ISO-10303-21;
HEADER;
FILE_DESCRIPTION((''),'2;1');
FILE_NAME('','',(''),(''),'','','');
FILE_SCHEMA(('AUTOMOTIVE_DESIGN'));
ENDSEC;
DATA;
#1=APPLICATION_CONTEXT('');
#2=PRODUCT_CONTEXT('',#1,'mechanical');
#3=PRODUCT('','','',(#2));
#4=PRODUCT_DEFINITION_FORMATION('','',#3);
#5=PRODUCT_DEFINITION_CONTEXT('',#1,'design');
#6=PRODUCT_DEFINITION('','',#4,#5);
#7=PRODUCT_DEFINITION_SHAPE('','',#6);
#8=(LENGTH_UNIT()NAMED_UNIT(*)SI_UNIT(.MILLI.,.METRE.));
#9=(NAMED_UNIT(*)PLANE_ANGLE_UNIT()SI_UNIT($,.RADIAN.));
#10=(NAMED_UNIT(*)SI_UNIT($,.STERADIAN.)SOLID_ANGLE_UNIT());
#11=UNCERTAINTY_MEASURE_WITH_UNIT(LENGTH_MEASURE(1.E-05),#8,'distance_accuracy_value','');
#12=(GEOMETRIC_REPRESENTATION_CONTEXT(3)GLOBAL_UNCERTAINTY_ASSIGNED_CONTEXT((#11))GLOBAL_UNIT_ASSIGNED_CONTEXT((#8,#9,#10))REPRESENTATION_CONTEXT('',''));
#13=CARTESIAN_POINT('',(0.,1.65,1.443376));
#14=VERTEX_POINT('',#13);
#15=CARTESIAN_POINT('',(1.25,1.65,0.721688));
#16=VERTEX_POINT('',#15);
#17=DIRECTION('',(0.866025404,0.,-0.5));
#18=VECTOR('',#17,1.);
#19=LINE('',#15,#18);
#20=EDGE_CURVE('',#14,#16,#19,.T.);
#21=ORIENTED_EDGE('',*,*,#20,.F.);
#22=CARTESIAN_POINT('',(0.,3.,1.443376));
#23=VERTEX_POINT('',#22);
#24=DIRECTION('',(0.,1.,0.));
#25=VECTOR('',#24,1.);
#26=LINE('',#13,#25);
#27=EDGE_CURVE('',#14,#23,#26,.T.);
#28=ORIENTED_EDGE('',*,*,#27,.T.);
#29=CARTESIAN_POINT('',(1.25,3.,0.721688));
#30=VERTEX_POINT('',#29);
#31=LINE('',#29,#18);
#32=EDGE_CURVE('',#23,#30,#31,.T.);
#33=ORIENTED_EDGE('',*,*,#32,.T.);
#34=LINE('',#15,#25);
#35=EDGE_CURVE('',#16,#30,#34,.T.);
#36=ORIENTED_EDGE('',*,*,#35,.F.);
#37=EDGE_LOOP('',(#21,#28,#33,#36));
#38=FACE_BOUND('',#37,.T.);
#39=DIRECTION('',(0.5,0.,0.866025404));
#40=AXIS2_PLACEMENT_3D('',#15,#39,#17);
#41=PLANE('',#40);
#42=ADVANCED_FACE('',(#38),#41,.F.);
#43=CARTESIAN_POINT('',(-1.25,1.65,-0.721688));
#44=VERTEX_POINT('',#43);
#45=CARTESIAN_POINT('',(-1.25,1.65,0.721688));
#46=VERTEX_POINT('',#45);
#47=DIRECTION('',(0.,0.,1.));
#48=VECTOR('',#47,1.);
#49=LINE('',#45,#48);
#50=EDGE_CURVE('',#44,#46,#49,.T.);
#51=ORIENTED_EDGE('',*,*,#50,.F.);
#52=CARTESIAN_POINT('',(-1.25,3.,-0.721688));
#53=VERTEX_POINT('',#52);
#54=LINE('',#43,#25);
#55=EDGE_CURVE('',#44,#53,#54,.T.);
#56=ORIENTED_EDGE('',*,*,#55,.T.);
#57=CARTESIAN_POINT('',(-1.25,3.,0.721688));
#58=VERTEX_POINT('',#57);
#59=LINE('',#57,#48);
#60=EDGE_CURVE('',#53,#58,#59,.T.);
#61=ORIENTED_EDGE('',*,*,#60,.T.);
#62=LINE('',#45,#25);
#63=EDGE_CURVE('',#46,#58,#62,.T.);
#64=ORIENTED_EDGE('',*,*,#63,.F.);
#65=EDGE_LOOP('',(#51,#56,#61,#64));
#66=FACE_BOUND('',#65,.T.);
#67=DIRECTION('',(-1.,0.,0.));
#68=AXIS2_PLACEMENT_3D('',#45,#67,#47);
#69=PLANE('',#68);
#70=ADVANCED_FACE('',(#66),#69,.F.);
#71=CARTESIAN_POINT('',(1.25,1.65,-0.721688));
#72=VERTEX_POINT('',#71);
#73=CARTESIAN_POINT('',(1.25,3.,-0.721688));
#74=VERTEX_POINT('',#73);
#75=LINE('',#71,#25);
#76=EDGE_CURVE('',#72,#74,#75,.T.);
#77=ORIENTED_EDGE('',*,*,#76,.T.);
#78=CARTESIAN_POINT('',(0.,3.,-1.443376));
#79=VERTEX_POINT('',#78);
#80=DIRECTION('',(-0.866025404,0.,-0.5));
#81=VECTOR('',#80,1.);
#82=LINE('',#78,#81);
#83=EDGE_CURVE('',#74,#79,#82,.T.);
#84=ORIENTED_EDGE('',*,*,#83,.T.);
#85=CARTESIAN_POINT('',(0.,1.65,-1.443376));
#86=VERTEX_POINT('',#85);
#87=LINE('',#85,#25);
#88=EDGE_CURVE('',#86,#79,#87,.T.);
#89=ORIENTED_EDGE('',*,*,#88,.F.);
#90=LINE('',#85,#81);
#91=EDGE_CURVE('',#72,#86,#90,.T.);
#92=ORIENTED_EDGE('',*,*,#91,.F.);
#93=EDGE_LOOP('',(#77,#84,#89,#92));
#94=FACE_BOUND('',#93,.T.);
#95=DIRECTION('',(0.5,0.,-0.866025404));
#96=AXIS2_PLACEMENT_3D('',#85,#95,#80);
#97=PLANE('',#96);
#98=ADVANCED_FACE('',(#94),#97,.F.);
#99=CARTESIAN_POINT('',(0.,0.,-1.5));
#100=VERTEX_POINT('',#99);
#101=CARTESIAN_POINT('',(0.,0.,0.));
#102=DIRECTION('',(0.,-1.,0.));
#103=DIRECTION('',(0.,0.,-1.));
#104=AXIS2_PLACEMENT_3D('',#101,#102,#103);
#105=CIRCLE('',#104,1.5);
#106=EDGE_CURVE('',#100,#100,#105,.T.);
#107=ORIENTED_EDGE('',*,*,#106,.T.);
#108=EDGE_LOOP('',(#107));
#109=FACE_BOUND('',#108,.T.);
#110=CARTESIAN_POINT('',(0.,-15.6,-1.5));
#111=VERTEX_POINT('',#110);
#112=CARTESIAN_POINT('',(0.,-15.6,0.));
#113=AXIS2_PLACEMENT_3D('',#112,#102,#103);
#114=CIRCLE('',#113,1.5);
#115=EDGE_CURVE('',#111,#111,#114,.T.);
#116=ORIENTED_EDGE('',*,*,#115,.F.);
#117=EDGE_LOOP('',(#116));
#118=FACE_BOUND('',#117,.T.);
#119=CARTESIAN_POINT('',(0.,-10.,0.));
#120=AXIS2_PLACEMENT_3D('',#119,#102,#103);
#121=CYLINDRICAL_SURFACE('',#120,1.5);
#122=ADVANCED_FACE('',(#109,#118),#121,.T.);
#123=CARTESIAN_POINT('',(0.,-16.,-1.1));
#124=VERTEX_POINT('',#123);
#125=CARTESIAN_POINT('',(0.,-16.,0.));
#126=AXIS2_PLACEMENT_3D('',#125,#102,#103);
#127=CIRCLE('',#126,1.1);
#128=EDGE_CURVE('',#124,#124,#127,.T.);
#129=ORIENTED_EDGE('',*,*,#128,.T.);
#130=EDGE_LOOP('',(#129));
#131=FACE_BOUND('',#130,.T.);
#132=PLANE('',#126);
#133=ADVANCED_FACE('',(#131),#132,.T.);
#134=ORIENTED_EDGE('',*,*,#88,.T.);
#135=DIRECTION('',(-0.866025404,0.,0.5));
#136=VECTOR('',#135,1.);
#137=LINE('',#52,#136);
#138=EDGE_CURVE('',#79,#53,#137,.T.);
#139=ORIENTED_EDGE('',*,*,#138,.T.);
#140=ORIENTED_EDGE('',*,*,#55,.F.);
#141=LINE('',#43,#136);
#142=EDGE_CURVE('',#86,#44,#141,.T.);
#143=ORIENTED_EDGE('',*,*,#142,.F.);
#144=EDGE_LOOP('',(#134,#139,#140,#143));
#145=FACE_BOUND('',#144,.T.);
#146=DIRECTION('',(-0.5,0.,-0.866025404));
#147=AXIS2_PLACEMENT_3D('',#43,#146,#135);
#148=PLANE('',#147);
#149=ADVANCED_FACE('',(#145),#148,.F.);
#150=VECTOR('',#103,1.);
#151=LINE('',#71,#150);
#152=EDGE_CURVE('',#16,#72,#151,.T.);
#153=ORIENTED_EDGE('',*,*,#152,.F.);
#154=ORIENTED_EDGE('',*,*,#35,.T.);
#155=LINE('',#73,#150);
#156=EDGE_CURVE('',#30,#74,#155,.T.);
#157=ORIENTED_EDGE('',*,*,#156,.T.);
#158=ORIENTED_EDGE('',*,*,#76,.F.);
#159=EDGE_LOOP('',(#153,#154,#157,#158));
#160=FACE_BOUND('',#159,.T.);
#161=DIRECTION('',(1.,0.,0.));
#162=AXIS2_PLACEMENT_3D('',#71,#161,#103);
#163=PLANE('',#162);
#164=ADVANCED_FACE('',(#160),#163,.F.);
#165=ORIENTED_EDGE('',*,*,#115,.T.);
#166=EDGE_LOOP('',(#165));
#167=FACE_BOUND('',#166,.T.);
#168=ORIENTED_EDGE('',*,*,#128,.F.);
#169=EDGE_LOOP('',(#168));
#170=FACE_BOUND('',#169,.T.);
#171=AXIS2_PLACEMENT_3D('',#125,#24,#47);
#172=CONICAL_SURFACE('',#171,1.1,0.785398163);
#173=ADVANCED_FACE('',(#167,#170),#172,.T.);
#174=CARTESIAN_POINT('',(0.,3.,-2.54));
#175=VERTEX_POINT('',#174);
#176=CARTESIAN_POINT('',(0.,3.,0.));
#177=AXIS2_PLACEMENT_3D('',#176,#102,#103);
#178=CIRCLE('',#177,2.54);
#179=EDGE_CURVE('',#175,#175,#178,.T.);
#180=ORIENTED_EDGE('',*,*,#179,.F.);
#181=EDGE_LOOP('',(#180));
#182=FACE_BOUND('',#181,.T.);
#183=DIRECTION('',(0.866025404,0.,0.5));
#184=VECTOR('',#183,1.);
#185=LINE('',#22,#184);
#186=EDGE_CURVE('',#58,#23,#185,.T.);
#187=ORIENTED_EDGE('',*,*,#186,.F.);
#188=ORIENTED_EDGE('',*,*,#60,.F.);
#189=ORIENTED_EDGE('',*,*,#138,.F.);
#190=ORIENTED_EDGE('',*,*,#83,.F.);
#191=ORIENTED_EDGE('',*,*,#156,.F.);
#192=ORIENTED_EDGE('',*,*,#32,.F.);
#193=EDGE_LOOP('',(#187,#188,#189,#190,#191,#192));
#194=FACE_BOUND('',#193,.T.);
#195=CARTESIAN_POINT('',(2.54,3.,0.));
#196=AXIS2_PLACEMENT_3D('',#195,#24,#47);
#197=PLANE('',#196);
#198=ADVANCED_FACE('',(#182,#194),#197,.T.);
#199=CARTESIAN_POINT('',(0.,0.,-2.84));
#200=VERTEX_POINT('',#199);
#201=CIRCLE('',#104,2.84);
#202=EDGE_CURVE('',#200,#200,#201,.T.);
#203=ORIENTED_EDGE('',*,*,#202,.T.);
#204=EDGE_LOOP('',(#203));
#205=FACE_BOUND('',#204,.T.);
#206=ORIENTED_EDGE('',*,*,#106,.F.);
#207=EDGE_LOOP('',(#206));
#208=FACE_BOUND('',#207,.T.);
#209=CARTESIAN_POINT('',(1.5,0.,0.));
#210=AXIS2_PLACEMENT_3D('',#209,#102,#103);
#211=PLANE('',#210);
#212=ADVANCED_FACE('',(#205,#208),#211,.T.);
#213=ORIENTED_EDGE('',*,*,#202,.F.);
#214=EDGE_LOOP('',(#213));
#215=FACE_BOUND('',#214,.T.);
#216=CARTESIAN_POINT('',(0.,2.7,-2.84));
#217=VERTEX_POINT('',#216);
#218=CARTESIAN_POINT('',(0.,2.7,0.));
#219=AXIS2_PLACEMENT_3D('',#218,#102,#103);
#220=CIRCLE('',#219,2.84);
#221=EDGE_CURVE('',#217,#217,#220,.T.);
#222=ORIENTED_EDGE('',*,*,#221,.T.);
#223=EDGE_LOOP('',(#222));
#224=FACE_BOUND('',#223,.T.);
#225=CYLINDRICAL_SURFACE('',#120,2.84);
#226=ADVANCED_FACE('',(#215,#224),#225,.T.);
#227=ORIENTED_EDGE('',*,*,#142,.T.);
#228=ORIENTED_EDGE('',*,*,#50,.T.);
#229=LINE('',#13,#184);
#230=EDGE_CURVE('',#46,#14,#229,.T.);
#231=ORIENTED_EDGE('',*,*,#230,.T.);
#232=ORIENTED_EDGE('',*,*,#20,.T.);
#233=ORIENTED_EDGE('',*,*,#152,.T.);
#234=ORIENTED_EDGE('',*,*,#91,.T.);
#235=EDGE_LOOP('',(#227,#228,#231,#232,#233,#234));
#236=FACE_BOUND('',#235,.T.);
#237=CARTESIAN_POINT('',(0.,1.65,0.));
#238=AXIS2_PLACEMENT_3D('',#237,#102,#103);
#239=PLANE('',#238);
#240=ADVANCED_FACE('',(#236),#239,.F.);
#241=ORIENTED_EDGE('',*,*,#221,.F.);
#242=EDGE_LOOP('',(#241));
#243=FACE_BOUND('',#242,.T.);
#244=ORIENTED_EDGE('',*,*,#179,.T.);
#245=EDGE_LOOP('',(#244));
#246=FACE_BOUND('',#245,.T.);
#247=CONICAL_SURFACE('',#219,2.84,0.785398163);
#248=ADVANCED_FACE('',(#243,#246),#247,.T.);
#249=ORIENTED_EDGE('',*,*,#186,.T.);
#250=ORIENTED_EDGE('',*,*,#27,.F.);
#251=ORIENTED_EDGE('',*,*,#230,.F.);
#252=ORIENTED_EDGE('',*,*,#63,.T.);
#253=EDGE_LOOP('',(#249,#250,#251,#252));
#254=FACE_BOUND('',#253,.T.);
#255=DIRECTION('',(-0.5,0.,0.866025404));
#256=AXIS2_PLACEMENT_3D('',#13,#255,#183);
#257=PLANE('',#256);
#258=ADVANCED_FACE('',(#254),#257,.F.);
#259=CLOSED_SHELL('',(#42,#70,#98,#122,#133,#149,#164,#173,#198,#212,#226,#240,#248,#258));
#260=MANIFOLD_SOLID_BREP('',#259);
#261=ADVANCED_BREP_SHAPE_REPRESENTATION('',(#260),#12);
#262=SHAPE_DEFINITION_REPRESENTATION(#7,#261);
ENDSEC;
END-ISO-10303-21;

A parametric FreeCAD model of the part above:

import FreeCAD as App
import Part
import Sketcher
from FreeCAD import Vector
Q = App.Units.Quantity

doc = App.newDocument("Part")
params = doc.addObject("Spreadsheet::Sheet", "Params")
for row, (alias, value) in enumerate([
    ("sketch1_height", "19 mm"),
    ("sketch1_width", "1.1 mm"),
    ("sketch1_height2", "15.6 mm"),
    ("sketch1_height3", "2.7 mm"),
    ("sketch1_width2", "1.34 mm"),
    ("revolution_angle", "360 deg"),
    ("pocket1_length", "1.35 mm"),
], start=1):
    params.set(f"A{row}", alias)
    params.set(f"B{row}", "=" + value)
    params.setAlias(f"B{row}", alias)

body = doc.addObject("PartDesign::Body", "Body")

# Sketch on XY plane
sketch1 = body.newObject("Sketcher::SketchObject", "Sketch")
sketch1.AttachmentSupport = (doc.getObject("XY_Plane"), [""])
sketch1.MapMode = "FlatFace"
sketch1.addGeometry([
    Part.LineSegment(Vector(0, -16, 0), Vector(1.1, -16, 0)),  # 0
    Part.LineSegment(Vector(1.1, -16, 0), Vector(1.5, -15.6, 0)),  # 1
    Part.LineSegment(Vector(1.5, -15.6, 0), Vector(1.5, 0, 0)),  # 2
    Part.LineSegment(Vector(1.5, 0, 0), Vector(2.84, 0, 0)),  # 3
    Part.LineSegment(Vector(2.84, 0, 0), Vector(2.84, 2.7, 0)),  # 4
    Part.LineSegment(Vector(2.84, 2.7, 0), Vector(2.54, 3, 0)),  # 5
    Part.LineSegment(Vector(2.54, 3, 0), Vector(0, 3, 0)),  # 6
    Part.LineSegment(Vector(0, 3, 0), Vector(0, -16, 0)),  # 7
], False)
sketch1.addConstraint([
    Sketcher.Constraint("Coincident", 0, 2, 1, 1),
    Sketcher.Constraint("Coincident", 1, 2, 2, 1),
    Sketcher.Constraint("Coincident", 2, 2, 3, 1),
    Sketcher.Constraint("Coincident", 3, 2, 4, 1),
    Sketcher.Constraint("Coincident", 4, 2, 5, 1),
    Sketcher.Constraint("Coincident", 5, 2, 6, 1),
    Sketcher.Constraint("Coincident", 6, 2, 7, 1),
    Sketcher.Constraint("Coincident", 7, 2, 0, 1),
    Sketcher.Constraint("Horizontal", 0),
    Sketcher.Constraint("Vertical", 2),
    Sketcher.Constraint("Horizontal", 3),
    Sketcher.Constraint("Vertical", 4),
    Sketcher.Constraint("Horizontal", 6),
    Sketcher.Constraint("Vertical", 7),
    Sketcher.Constraint("PointOnObject", 2, 2, -1),
    Sketcher.Constraint("PointOnObject", 6, 2, -2),
    Sketcher.Constraint("Perpendicular", 1, 5),
    Sketcher.Constraint("DistanceY", 7, 2, 7, 1, 19.0),
    Sketcher.Constraint("Angle", 1, Q("45 deg")),
    Sketcher.Constraint("DistanceX", 0, 1, 0, 2, 1.1),
    Sketcher.Constraint("DistanceY", 2, 1, 2, 2, 15.6),
    Sketcher.Constraint("DistanceY", 4, 1, 4, 2, 2.7),
    Sketcher.Constraint("DistanceY", 0, 2, -1, 1, 16.0),
    Sketcher.Constraint("DistanceX", 3, 1, 3, 2, 1.34),
])
sketch1.setExpression("Constraints[17]", "Params.sketch1_height")
sketch1.setExpression("Constraints[19]", "Params.sketch1_width")
sketch1.setExpression("Constraints[20]", "Params.sketch1_height2")
sketch1.setExpression("Constraints[21]", "Params.sketch1_height3")
sketch1.setExpression("Constraints[23]", "Params.sketch1_width2")
revolution = body.newObject("PartDesign::Revolution", "Revolution")
revolution.Profile = sketch1
revolution.ReferenceAxis = (sketch1, ["V_Axis"])
revolution.setExpression("Angle", "Params.revolution_angle")

# Sketch on XZ plane
sketch2 = body.newObject("Sketcher::SketchObject", "Sketch001")
sketch2.AttachmentSupport = (doc.getObject("XZ_Plane"), [""])
sketch2.MapMode = "FlatFace"
sketch2.AttachmentOffset = App.Placement(Vector(0, 0, -3), App.Rotation())
sketch2.addGeometry([
    Part.LineSegment(Vector(0, 1.4, 0), Vector(1.2, 0.7, 0)),  # 0
    Part.LineSegment(Vector(1.2, 0.7, 0), Vector(1.2, -0.7, 0)),  # 1
    Part.LineSegment(Vector(1.2, -0.7, 0), Vector(0, -1.4, 0)),  # 2
    Part.LineSegment(Vector(0, -1.4, 0), Vector(-1.2, -0.7, 0)),  # 3
    Part.LineSegment(Vector(-1.2, -0.7, 0), Vector(-1.2, 0.7, 0)),  # 4
    Part.LineSegment(Vector(-1.2, 0.7, 0), Vector(0, 1.4, 0)),  # 5
], False)
sketch2.addConstraint([
    Sketcher.Constraint("Coincident", 0, 2, 1, 1),
    Sketcher.Constraint("Coincident", 1, 2, 2, 1),
    Sketcher.Constraint("Coincident", 2, 2, 3, 1),
    Sketcher.Constraint("Coincident", 3, 2, 4, 1),
    Sketcher.Constraint("Coincident", 4, 2, 5, 1),
    Sketcher.Constraint("Coincident", 5, 2, 0, 1),
    Sketcher.Constraint("Vertical", 1),
    Sketcher.Constraint("Vertical", 4),
    Sketcher.Constraint("Symmetric", 0, 2, 3, 2, -1, 1),
    Sketcher.Constraint("Symmetric", 2, 2, 5, 2, -1, 1),
    Sketcher.Constraint("PointOnObject", 2, 2, -2),
    Sketcher.Constraint("Parallel", 2, 5),
    Sketcher.Constraint("Horizontal", 1, 2, 3, 2),
    Sketcher.Constraint("Angle", 0, Q("-30 deg")),
    Sketcher.Constraint("DistanceX", 3, 2, 1, 2, 2.5),
    Sketcher.Constraint("DistanceY", 1, 2, 1, 1, 1.443376),
])
pocket1 = body.newObject("PartDesign::Pocket", "Pocket")
pocket1.Profile = sketch2
pocket1.setExpression("Length", "Params.pocket1_length")
pocket1.Reversed = True

doc.recompute()
